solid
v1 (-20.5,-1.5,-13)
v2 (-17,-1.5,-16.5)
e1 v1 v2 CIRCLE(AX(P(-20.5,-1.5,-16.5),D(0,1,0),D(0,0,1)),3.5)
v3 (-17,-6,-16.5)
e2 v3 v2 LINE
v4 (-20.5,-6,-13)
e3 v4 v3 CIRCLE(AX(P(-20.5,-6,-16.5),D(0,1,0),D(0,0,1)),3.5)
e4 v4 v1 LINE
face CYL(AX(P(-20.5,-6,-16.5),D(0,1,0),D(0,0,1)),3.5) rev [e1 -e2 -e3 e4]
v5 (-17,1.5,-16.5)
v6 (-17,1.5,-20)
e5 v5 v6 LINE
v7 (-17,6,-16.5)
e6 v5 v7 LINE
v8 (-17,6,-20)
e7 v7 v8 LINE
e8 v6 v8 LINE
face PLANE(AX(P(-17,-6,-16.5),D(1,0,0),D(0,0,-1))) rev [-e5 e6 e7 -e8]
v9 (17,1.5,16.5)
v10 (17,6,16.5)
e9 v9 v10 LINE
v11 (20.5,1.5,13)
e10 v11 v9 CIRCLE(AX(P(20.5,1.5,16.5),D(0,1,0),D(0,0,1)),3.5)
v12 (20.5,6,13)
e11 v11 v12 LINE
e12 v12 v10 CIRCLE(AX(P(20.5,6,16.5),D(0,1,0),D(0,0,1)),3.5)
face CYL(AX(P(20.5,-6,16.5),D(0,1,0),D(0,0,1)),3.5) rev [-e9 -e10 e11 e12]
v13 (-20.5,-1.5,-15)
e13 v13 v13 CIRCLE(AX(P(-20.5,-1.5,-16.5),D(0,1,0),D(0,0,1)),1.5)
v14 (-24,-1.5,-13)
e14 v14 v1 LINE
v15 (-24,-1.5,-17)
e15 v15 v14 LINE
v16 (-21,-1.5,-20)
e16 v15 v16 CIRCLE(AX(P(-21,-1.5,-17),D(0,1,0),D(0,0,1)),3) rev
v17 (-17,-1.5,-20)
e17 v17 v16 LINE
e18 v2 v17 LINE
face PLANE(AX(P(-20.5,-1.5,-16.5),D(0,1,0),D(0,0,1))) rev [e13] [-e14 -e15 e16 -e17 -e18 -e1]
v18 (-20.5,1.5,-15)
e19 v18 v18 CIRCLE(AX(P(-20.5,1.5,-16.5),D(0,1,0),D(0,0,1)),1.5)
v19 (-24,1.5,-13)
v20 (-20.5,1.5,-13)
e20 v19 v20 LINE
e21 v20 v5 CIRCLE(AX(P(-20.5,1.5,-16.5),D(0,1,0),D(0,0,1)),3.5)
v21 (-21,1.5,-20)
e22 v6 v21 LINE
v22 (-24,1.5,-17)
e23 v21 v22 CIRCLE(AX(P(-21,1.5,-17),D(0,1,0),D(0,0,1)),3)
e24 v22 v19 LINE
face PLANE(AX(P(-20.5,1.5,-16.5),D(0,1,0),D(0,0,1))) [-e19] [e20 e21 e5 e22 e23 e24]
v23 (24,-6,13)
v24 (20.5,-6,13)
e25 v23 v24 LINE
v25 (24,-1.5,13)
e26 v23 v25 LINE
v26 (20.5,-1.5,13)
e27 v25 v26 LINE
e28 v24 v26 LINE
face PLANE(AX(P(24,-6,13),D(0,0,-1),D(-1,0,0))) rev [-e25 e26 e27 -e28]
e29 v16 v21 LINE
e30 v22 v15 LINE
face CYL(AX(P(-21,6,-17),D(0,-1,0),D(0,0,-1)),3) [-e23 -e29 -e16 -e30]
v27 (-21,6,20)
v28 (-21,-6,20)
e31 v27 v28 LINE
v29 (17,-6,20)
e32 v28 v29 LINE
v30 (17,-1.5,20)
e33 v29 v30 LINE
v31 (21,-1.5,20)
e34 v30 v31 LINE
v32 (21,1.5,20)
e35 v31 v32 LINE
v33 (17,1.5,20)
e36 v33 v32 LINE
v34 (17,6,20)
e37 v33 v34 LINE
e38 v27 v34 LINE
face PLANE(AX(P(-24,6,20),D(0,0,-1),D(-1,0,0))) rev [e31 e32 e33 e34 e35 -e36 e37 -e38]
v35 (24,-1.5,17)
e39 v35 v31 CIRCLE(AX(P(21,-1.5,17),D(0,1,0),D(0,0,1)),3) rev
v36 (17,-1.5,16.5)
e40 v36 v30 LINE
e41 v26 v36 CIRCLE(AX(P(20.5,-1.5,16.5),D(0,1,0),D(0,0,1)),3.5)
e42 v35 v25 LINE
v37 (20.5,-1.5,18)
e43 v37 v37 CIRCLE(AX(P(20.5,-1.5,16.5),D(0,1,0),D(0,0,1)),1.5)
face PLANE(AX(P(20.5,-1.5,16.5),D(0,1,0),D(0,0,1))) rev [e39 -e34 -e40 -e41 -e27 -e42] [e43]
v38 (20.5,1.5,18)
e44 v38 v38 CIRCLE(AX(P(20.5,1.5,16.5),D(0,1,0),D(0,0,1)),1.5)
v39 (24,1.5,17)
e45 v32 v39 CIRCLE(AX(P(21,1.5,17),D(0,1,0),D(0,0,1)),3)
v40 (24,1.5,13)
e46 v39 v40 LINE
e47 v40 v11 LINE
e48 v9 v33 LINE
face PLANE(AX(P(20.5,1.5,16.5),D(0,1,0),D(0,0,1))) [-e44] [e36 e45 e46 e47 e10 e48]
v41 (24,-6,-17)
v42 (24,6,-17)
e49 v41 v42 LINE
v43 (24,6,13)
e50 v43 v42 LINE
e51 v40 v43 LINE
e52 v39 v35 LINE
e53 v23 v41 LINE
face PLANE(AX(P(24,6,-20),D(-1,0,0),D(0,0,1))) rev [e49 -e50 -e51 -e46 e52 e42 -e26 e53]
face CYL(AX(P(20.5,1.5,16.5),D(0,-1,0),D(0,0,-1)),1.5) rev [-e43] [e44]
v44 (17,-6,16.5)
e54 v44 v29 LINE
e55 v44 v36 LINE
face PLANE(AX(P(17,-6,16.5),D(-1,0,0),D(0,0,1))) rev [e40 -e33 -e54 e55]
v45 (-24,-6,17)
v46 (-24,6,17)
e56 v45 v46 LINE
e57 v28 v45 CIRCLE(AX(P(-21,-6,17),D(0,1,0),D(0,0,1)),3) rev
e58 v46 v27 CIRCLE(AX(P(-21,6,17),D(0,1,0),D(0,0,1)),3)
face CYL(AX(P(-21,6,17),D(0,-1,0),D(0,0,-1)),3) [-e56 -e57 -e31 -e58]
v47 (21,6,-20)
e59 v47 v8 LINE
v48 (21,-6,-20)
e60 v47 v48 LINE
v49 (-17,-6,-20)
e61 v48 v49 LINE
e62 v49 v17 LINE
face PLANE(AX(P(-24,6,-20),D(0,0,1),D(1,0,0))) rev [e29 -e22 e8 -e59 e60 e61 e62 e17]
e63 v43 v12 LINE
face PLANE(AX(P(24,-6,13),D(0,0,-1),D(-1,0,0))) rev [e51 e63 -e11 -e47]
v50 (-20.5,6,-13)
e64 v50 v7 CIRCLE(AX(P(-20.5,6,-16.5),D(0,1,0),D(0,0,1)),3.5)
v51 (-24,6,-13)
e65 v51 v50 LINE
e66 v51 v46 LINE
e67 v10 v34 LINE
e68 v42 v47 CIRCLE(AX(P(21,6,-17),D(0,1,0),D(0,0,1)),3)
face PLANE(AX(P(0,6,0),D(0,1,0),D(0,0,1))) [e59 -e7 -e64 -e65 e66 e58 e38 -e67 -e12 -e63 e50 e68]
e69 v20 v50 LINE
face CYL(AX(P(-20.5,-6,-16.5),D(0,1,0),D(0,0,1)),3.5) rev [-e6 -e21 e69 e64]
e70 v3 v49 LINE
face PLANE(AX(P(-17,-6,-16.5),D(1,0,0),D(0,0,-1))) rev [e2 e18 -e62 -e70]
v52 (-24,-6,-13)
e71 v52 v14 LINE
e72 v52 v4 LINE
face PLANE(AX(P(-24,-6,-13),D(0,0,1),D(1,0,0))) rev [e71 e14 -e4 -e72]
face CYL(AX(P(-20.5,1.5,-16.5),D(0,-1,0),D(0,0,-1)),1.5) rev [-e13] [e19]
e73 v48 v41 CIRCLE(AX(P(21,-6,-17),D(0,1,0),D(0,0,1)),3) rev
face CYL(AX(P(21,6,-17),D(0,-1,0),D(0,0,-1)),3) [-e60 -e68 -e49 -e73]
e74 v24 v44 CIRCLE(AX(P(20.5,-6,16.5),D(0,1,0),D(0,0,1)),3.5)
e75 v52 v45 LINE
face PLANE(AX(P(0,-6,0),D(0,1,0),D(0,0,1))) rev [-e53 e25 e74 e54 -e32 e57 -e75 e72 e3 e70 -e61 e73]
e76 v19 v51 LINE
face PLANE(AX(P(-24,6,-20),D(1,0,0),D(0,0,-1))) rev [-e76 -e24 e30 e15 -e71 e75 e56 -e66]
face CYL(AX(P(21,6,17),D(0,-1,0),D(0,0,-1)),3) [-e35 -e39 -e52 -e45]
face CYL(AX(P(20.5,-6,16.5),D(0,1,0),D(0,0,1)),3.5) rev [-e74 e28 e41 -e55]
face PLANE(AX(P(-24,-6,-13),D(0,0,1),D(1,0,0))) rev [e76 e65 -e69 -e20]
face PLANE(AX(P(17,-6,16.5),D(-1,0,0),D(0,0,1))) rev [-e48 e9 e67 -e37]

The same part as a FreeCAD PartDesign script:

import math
import FreeCAD as App
import Part
import Sketcher

V = App.Vector
Q = App.Units.Quantity


def edges_at(feature, points):
    """Names of the edges that pass closest to the given points."""
    edges = feature.Shape.Edges
    near = lambda p: min(range(len(edges)), key=lambda i: edges[i].distToShape(Part.Vertex(*p))[0])
    return sorted({f"Edge{near(p) + 1}" for p in points})

doc = App.newDocument("Part")
body = doc.addObject("PartDesign::Body", "Body")

sketch1 = doc.addObject("Sketcher::SketchObject", "Sketch")
body.addObject(sketch1)
sketch1.AttachmentSupport = (doc.XZ_Plane, [""])
sketch1.MapMode = "FlatFace"
sketch1.addGeometry([
    Part.LineSegment(V(-24, -20, 0), V(-24, 20, 0)),
    Part.LineSegment(V(-24, 20, 0), V(24, 20, 0)),
    Part.LineSegment(V(24, 20, 0), V(24, -20, 0)),
    Part.LineSegment(V(24, -20, 0), V(-24, -20, 0)),
], False)
sketch1.addConstraint([
    Sketcher.Constraint("Coincident", 0, 2, 1, 1),
    Sketcher.Constraint("Coincident", 1, 2, 2, 1),
    Sketcher.Constraint("Coincident", 2, 2, 3, 1),
    Sketcher.Constraint("Coincident", 3, 2, 0, 1),
    Sketcher.Constraint("Vertical", 0),
    Sketcher.Constraint("Horizontal", 1),
    Sketcher.Constraint("Vertical", 2),
    Sketcher.Constraint("Horizontal", 3),
    Sketcher.Constraint("Symmetric", 0, 2, 2, 2, -1, 1),
    Sketcher.Constraint("DistanceX", 1, 1, 1, 2, Q("48 mm")),
    Sketcher.Constraint("DistanceY", 0, 1, 0, 2, Q("40 mm")),
])
pad1 = doc.addObject("PartDesign::Pad", "Pad")
body.addObject(pad1)
pad1.Profile = sketch1
pad1.Length = 12
pad1.Midplane = True

sketch2 = doc.addObject("Sketcher::SketchObject", "Sketch001")
body.addObject(sketch2)
sketch2.AttachmentSupport = (doc.XZ_Plane, [""])
sketch2.MapMode = "FlatFace"
sketch2.AttachmentOffset = App.Placement(V(0, 0, -6), App.Rotation())
sketch2.addGeometry([
    Part.LineSegment(V(-24, -13, 0), V(-20.5, -13, 0)),
    Part.ArcOfCircle(Part.Circle(V(-20.5, -16.5, 0), V(0, 0, 1), 3.5), math.radians(0), math.radians(90)),
    Part.LineSegment(V(-17, -16.5, 0), V(-17, -20, 0)),
    Part.LineSegment(V(-17, -20, 0), V(-24, -20, 0)),
    Part.LineSegment(V(-24, -20, 0), V(-24, -13, 0)),
    Part.LineSegment(V(24, 13, 0), V(20.5, 13, 0)),
    Part.ArcOfCircle(Part.Circle(V(20.5, 16.5, 0), V(0, 0, 1), 3.5), math.radians(-180), math.radians(-90)),
    Part.LineSegment(V(17, 16.5, 0), V(17, 20, 0)),
    Part.LineSegment(V(17, 20, 0), V(24, 20, 0)),
    Part.LineSegment(V(24, 20, 0), V(24, 13, 0)),
], False)
sketch2.addConstraint([
    Sketcher.Constraint("Tangent", 0, 2, 1, 2),
    Sketcher.Constraint("Tangent", 1, 1, 2, 1),
    Sketcher.Constraint("Coincident", 2, 2, 3, 1),
    Sketcher.Constraint("Coincident", 3, 2, 4, 1),
    Sketcher.Constraint("Coincident", 4, 2, 0, 1),
    Sketcher.Constraint("Tangent", 5, 2, 6, 2),
    Sketcher.Constraint("Tangent", 6, 1, 7, 1),
    Sketcher.Constraint("Coincident", 7, 2, 8, 1),
    Sketcher.Constraint("Coincident", 8, 2, 9, 1),
    Sketcher.Constraint("Coincident", 9, 2, 5, 1),
    Sketcher.Constraint("Horizontal", 0),
    Sketcher.Constraint("Vertical", 2),
    Sketcher.Constraint("Horizontal", 3),
    Sketcher.Constraint("Vertical", 4),
    Sketcher.Constraint("Horizontal", 5),
    Sketcher.Constraint("Vertical", 7),
    Sketcher.Constraint("Horizontal", 8),
    Sketcher.Constraint("Vertical", 9),
    Sketcher.Constraint("Equal", 1, 6),
    Sketcher.Constraint("Symmetric", 1, 3, 6, 3, -1, 1),
    Sketcher.Constraint("Symmetric", 3, 2, 8, 2, -1, 1),
    Sketcher.Constraint("Equal", 5, 2),
    Sketcher.Constraint("Radius", 1, Q("3.5 mm")),
    Sketcher.Constraint("DistanceX", 3, 2, 3, 1, Q("7 mm")),
    Sketcher.Constraint("DistanceY", 0, 2, -1, 1, Q("13 mm")),
    Sketcher.Constraint("DistanceX", 1, 1, -1, 1, Q("17 mm")),
])
pocket1 = doc.addObject("PartDesign::Pocket", "Pocket")
body.addObject(pocket1)
pocket1.Profile = sketch2
pocket1.Type = "ThroughAll"
pocket1.Midplane = True

sketch3 = doc.addObject("Sketcher::SketchObject", "Sketch002")
body.addObject(sketch3)
sketch3.AttachmentSupport = (doc.XZ_Plane, [""])
sketch3.MapMode = "FlatFace"
sketch3.addGeometry([
    Part.LineSegment(V(24, 13, 0), V(20.5, 13, 0)),
    Part.ArcOfCircle(Part.Circle(V(20.5, 16.5, 0), V(0, 0, 1), 3.5), math.radians(-180), math.radians(-90)),
    Part.LineSegment(V(17, 16.5, 0), V(17, 20, 0)),
    Part.LineSegment(V(17, 20, 0), V(24, 20, 0)),
    Part.LineSegment(V(24, 20, 0), V(24, 13, 0)),
    Part.Circle(V(20.5, 16.5, 0), V(0, 0, 1), 1.5),
    Part.LineSegment(V(-24, -13, 0), V(-20.5, -13, 0)),
    Part.ArcOfCircle(Part.Circle(V(-20.5, -16.5, 0), V(0, 0, 1), 3.5), math.radians(0), math.radians(90)),
    Part.LineSegment(V(-17, -16.5, 0), V(-17, -20, 0)),
    Part.LineSegment(V(-17, -20, 0), V(-24, -20, 0)),
    Part.LineSegment(V(-24, -20, 0), V(-24, -13, 0)),
    Part.Circle(V(-20.5, -16.5, 0), V(0, 0, 1), 1.5),
], False)
sketch3.addConstraint([
    Sketcher.Constraint("Tangent", 0, 2, 1, 2),
    Sketcher.Constraint("Tangent", 1, 1, 2, 1),
    Sketcher.Constraint("Coincident", 2, 2, 3, 1),
    Sketcher.Constraint("Coincident", 3, 2, 4, 1),
    Sketcher.Constraint("Coincident", 4, 2, 0, 1),
    Sketcher.Constraint("Tangent", 6, 2, 7, 2),
    Sketcher.Constraint("Tangent", 7, 1, 8, 1),
    Sketcher.Constraint("Coincident", 8, 2, 9, 1),
    Sketcher.Constraint("Coincident", 9, 2, 10, 1),
    Sketcher.Constraint("Coincident", 10, 2, 6, 1),
    Sketcher.Constraint("Horizontal", 0),
    Sketcher.Constraint("Vertical", 2),
    Sketcher.Constraint("Horizontal", 3),
    Sketcher.Constraint("Vertical", 4),
    Sketcher.Constraint("Horizontal", 6),
    Sketcher.Constraint("Vertical", 8),
    Sketcher.Constraint("Horizontal", 9),
    Sketcher.Constraint("Vertical", 10),
    Sketcher.Constraint("Coincident", 5, 3, 1, 3),
    Sketcher.Constraint("Coincident", 11, 3, 7, 3),
    Sketcher.Constraint("Equal", 1, 7),
    Sketcher.Constraint("Equal", 5, 11),
    Sketcher.Constraint("Symmetric", 1, 3, 7, 3, -1, 1),
    Sketcher.Constraint("Symmetric", 3, 2, 9, 2, -1, 1),
    Sketcher.Constraint("Equal", 6, 2),
    Sketcher.Constraint("Diameter", 5, Q("3 mm")),
    Sketcher.Constraint("Radius", 1, Q("3.5 mm")),
    Sketcher.Constraint("DistanceX", 3, 1, 3, 2, Q("7 mm")),
    Sketcher.Constraint("DistanceY", -1, 1, 0, 2, Q("13 mm")),
    Sketcher.Constraint("DistanceX", -1, 1, 1, 1, Q("17 mm")),
])
pad2 = doc.addObject("PartDesign::Pad", "Pad001")
body.addObject(pad2)
pad2.Profile = sketch3
pad2.Length = 3
pad2.Midplane = True
doc.recompute()

fillet = doc.addObject("PartDesign::Fillet", "Fillet")
body.addObject(fillet)
fillet.Base = (pad2, edges_at(pad2, [
    (24, 0, 20),
    (-24, 0, 20),
    (24, 0, -20),
    (-24, 0, -20),
]))
fillet.Radius = 3

doc.recompute()
